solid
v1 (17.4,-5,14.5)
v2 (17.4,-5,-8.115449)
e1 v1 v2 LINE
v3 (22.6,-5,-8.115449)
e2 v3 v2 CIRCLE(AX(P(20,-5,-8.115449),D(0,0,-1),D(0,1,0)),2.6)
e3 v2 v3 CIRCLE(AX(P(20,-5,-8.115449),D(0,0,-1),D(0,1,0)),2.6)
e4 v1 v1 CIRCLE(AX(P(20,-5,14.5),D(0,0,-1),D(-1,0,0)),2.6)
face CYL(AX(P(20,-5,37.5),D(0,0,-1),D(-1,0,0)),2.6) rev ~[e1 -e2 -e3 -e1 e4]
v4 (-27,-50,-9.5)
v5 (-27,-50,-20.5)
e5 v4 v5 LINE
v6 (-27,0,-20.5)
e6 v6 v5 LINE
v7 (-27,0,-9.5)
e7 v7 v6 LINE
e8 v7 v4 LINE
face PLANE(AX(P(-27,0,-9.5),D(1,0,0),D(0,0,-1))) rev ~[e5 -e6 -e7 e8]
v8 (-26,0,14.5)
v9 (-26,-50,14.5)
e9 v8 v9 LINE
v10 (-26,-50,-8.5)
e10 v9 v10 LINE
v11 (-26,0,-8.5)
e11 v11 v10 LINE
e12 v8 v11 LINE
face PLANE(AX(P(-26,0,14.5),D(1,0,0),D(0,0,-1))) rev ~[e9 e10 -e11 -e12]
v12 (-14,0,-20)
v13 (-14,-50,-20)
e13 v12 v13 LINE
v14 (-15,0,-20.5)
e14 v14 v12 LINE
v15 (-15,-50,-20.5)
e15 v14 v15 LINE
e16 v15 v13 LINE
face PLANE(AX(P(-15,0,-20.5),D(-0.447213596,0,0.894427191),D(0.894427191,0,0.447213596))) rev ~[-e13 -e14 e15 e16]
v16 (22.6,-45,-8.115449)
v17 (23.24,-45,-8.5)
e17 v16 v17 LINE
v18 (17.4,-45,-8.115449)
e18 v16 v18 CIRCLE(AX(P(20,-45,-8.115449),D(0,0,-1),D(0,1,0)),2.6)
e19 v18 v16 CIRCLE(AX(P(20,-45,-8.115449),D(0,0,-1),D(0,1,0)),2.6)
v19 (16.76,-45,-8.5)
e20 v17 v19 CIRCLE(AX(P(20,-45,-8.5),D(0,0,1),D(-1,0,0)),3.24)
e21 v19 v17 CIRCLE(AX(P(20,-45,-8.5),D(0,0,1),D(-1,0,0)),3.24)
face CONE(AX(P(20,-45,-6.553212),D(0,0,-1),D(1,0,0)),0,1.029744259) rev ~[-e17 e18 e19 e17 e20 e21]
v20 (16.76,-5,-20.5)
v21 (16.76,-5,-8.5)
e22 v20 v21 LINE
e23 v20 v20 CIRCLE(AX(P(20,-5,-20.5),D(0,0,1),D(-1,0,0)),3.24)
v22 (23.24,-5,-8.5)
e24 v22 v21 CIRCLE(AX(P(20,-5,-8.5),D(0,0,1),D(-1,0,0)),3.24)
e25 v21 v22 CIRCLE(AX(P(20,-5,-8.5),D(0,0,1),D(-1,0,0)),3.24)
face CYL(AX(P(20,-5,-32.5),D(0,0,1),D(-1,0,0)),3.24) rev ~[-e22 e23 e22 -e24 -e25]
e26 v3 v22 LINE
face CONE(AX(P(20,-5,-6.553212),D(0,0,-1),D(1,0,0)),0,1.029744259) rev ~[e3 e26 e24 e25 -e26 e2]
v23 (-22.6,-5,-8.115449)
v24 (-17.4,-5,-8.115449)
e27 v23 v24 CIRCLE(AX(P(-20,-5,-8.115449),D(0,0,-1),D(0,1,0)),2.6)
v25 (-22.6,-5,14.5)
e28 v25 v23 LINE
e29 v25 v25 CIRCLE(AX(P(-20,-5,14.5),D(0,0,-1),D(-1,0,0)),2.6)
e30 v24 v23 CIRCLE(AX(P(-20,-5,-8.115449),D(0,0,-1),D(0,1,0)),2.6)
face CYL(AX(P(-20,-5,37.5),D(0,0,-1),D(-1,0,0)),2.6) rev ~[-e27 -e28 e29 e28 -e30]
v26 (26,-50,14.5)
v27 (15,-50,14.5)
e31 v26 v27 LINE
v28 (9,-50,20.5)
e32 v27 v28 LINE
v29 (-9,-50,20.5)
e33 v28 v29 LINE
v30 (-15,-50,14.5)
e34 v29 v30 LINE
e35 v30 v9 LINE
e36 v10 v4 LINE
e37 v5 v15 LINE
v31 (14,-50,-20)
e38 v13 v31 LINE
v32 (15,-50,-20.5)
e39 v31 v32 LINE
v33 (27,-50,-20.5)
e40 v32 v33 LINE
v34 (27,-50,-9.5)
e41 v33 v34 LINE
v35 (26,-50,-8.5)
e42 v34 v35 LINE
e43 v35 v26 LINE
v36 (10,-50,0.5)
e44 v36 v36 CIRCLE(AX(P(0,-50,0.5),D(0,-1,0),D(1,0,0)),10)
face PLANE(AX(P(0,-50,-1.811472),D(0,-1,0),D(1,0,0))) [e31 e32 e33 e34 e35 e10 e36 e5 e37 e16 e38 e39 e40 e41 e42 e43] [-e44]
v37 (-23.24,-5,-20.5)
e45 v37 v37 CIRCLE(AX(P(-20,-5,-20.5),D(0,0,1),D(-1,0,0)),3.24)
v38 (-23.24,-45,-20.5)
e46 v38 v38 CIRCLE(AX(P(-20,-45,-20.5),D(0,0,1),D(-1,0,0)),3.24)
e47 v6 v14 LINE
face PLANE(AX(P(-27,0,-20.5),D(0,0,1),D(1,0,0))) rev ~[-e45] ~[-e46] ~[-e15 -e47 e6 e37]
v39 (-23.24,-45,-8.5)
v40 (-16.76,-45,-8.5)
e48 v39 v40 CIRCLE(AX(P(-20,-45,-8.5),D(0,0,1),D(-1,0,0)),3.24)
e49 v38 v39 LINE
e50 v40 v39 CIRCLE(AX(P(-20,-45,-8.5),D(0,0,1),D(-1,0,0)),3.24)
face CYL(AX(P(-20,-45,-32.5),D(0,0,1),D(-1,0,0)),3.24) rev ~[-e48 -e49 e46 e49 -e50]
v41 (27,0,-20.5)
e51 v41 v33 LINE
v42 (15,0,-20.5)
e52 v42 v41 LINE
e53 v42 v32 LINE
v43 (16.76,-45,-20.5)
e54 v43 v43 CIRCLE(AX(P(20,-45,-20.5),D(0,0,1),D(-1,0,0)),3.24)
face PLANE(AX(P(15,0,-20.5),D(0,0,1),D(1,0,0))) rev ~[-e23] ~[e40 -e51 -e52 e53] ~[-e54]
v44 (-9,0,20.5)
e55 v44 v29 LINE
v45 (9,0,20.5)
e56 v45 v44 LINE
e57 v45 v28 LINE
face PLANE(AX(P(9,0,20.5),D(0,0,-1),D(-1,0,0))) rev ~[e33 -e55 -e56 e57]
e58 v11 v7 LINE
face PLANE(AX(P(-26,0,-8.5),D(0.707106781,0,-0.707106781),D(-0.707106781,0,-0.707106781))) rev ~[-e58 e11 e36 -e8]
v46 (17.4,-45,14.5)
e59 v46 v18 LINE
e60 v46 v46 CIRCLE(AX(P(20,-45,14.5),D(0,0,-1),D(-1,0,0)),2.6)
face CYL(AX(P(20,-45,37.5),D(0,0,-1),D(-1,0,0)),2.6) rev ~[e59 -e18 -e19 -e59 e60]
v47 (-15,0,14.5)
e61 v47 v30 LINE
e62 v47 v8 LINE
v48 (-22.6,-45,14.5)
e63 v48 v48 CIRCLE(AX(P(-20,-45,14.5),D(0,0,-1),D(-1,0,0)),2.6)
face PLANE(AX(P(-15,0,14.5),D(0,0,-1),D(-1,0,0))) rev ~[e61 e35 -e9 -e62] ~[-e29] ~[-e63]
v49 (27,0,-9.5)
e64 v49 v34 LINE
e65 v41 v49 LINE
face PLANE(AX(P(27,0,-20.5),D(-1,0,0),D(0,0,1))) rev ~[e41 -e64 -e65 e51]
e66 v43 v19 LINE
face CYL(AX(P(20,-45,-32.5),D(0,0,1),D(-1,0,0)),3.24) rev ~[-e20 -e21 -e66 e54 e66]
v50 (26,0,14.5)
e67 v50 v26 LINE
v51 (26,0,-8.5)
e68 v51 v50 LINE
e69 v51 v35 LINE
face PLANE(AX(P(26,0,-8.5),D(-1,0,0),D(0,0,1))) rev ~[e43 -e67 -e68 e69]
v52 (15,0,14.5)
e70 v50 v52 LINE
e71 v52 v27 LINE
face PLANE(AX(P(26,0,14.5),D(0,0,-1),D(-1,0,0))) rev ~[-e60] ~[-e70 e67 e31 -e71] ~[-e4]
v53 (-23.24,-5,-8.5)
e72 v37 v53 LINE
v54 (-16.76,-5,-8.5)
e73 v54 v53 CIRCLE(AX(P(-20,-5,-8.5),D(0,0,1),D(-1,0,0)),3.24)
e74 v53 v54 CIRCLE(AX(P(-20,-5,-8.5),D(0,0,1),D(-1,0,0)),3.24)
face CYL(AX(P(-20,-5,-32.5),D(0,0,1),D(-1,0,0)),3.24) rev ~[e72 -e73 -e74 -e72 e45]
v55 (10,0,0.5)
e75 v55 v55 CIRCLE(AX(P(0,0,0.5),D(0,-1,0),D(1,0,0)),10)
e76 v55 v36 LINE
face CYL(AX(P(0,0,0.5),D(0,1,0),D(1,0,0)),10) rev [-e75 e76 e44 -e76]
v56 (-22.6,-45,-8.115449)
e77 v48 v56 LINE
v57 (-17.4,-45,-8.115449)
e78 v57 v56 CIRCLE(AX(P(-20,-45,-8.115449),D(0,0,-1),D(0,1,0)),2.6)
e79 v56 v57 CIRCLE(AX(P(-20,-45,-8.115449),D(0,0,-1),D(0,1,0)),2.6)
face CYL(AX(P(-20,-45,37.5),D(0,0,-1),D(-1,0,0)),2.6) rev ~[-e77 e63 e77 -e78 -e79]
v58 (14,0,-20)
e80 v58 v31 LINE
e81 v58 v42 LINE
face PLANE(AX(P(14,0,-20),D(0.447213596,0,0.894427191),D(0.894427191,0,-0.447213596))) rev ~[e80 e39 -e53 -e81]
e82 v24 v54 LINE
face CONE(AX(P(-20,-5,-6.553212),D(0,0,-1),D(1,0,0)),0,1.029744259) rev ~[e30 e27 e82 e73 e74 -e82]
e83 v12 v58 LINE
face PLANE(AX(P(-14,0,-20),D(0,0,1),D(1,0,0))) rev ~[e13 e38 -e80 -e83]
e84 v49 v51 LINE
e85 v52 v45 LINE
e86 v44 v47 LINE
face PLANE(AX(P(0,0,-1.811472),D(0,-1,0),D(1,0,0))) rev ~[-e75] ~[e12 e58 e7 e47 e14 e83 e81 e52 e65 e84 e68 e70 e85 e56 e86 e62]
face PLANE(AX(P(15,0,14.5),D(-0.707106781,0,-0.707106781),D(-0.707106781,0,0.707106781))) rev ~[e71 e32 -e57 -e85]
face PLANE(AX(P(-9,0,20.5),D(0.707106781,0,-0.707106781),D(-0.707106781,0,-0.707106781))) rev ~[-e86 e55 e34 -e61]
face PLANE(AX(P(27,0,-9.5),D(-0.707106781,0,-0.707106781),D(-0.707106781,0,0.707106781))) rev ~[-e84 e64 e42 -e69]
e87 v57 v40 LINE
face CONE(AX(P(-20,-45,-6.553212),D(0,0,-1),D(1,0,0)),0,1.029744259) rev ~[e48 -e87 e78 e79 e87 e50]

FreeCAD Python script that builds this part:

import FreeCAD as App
import Part
import Sketcher

V = App.Vector


def add_polygon(sketch, points):
    """Adds a closed chain of lines whose ends are joined by coincident constraints."""
    first, n = sketch.GeometryCount, len(points)
    for a, b in zip(points, points[1:] + points[:1]):
        sketch.addGeometry(Part.LineSegment(App.Vector(*a, 0), App.Vector(*b, 0)), False)
    for i in range(n):
        sketch.addConstraint(Sketcher.Constraint("Coincident", first + i, 2, first + (i + 1) % n, 1))

doc = App.newDocument("Part")
body = doc.addObject("PartDesign::Body", "Body")

sketch1 = body.newObject("Sketcher::SketchObject", "Sketch")
sketch1.AttachmentSupport = (doc.getObject("XZ_Plane"), [""])
sketch1.MapMode = "FlatFace"
add_polygon(sketch1, [(15, -20.5), (27, -20.5), (27, -9.5), (26, -8.5), (26, 14.5), (15, 14.5), (9, 20.5), (-9, 20.5), (-15, 14.5), (-26, 14.5), (-26, -8.5), (-27, -9.5), (-27, -20.5), (-15, -20.5), (-14, -20), (14, -20)])
sketch1.addGeometry(Part.Circle(V(0, 0.5, 0), V(0, 0, 1), 10), False)
sketch1.addConstraint([
    Sketcher.Constraint("Horizontal", 0),
    Sketcher.Constraint("Vertical", 1),
    Sketcher.Constraint("Vertical", 3),
    Sketcher.Constraint("Horizontal", 4),
    Sketcher.Constraint("Horizontal", 6),
    Sketcher.Constraint("Horizontal", 8),
    Sketcher.Constraint("Vertical", 9),
    Sketcher.Constraint("Vertical", 11),
    Sketcher.Constraint("Horizontal", 12),
    Sketcher.Constraint("Horizontal", 14),
    Sketcher.Constraint("Symmetric", 4, 2, 7, 2, -2),
    Sketcher.Constraint("Symmetric", 2, 2, 9, 2, -2),
    Sketcher.Constraint("Symmetric", 1, 2, 10, 2, -2),
    Sketcher.Constraint("Symmetric", 12, 2, 15, 2, -2),
    Sketcher.Constraint("PointOnObject", 16, 3, -2),
    Sketcher.Constraint("Parallel", 2, 5),
    Sketcher.Constraint("Perpendicular", 5, 7),
    Sketcher.Constraint("Parallel", 7, 10),
    Sketcher.Constraint("Vertical", 7, 2, 12, 2),
    Sketcher.Constraint("Equal", 8, 1),
    Sketcher.Constraint("Equal", 13, 15),
    Sketcher.Constraint("Diameter", 16, 20.0),
    Sketcher.Constraint("DistanceX", 0, 1, 0, 2, 12.0),
    Sketcher.Constraint("DistanceX", 4, 2, 4, 1, 11.0),
    Sketcher.Constraint("DistanceX", 6, 2, 6, 1, 18.0),
    Sketcher.Constraint("DistanceX", 14, 1, 14, 2, 28.0),
    Sketcher.Constraint("DistanceY", 3, 1, 3, 2, 23.0),
    Sketcher.Constraint("DistanceX", -1, 1, 0, 2, 27.0),
    Sketcher.Constraint("DistanceY", 13, 2, -1, 1, 20.0),
    Sketcher.Constraint("DistanceY", 0, 2, 16, 3, 21.0),
    Sketcher.Constraint("DistanceY", -1, 1, 16, 3, 0.5),
])
pad1 = body.newObject("PartDesign::Pad", "Pad")
pad1.Profile = sketch1
pad1.Length = 50

sketch2 = body.newObject("Sketcher::SketchObject", "Sketch001")
sketch2.AttachmentSupport = (doc.getObject("XY_Plane"), [""])
sketch2.MapMode = "FlatFace"
sketch2.AttachmentOffset = App.Placement(V(0, 0, -20.5), App.Rotation())
sketch2.addGeometry(Part.Circle(V(20, -45, 0), V(0, 0, 1), 3.2), False)
sketch2.addConstraint([
    Sketcher.Constraint("Diameter", 0, 6.48),
    Sketcher.Constraint("DistanceX", -1, 1, 0, 3, 20.0),
    Sketcher.Constraint("DistanceY", 0, 3, -1, 1, 45.0),
])
doc.recompute()
hole = body.newObject("PartDesign::Hole", "Hole")
hole.Profile = sketch2
hole.ThreadType = "None"
hole.Diameter = 6.48
hole.DepthType = "Dimension"
hole.Depth = 12
hole.DrillPoint = "Angled"
hole.DrillPointAngle = 118
hole.Reversed = True

sketch3 = body.newObject("Sketcher::SketchObject", "Sketch002")
sketch3.AttachmentSupport = (doc.getObject("XY_Plane"), [""])
sketch3.MapMode = "FlatFace"
sketch3.AttachmentOffset = App.Placement(V(0, 0, -20.5), App.Rotation())
sketch3.addGeometry(Part.Circle(V(-20, -45, 0), V(0, 0, 1), 3.2), False)
sketch3.addConstraint([
    Sketcher.Constraint("Diameter", 0, 6.48),
    Sketcher.Constraint("DistanceX", 0, 3, -1, 1, 20.0),
    Sketcher.Constraint("DistanceY", 0, 3, -1, 1, 45.0),
])
doc.recompute()
hole2 = body.newObject("PartDesign::Hole", "Hole001")
hole2.Profile = sketch3
hole2.ThreadType = "None"
hole2.Diameter = 6.48
hole2.DepthType = "Dimension"
hole2.Depth = 12
hole2.DrillPoint = "Angled"
hole2.DrillPointAngle = 118
hole2.Reversed = True

sketch4 = body.newObject("Sketcher::SketchObject", "Sketch003")
sketch4.AttachmentSupport = (doc.getObject("XY_Plane"), [""])
sketch4.MapMode = "FlatFace"
sketch4.AttachmentOffset = App.Placement(V(0, 0, -20.5), App.Rotation())
sketch4.addGeometry(Part.Circle(V(20, -5, 0), V(0, 0, 1), 3.2), False)
sketch4.addConstraint([
    Sketcher.Constraint("Diameter", 0, 6.48),
    Sketcher.Constraint("DistanceX", -1, 1, 0, 3, 20.0),
    Sketcher.Constraint("DistanceY", 0, 3, -1, 1, 5.0),
])
doc.recompute()
hole3 = body.newObject("PartDesign::Hole", "Hole002")
hole3.Profile = sketch4
hole3.ThreadType = "None"
hole3.Diameter = 6.48
hole3.DepthType = "Dimension"
hole3.Depth = 12
hole3.DrillPoint = "Angled"
hole3.DrillPointAngle = 118
hole3.Reversed = True

sketch5 = body.newObject("Sketcher::SketchObject", "Sketch004")
sketch5.AttachmentSupport = (doc.getObject("XY_Plane"), [""])
sketch5.MapMode = "FlatFace"
sketch5.AttachmentOffset = App.Placement(V(0, 0, -20.5), App.Rotation())
sketch5.addGeometry(Part.Circle(V(-20, -5, 0), V(0, 0, 1), 3.2), False)
sketch5.addConstraint([
    Sketcher.Constraint("Diameter", 0, 6.48),
    Sketcher.Constraint("DistanceX", 0, 3, -1, 1, 20.0),
    Sketcher.Constraint("DistanceY", 0, 3, -1, 1, 5.0),
])
doc.recompute()
hole4 = body.newObject("PartDesign::Hole", "Hole003")
hole4.Profile = sketch5
hole4.ThreadType = "None"
hole4.Diameter = 6.48
hole4.DepthType = "Dimension"
hole4.Depth = 12
hole4.DrillPoint = "Angled"
hole4.DrillPointAngle = 118
hole4.Reversed = True

sketch6 = body.newObject("Sketcher::SketchObject", "Sketch005")
sketch6.AttachmentSupport = (doc.getObject("XY_Plane"), [""])
sketch6.MapMode = "FlatFace"
sketch6.AttachmentOffset = App.Placement(V(0, 0, 14.5), App.Rotation())
sketch6.addGeometry(Part.Circle(V(20, -45, 0), V(0, 0, 1), 2.6), False)
sketch6.addConstraint([
    Sketcher.Constraint("Diameter", 0, 5.2),
    Sketcher.Constraint("DistanceX", -1, 1, 0, 3, 20.0),
    Sketcher.Constraint("DistanceY", 0, 3, -1, 1, 45.0),
])
doc.recompute()
hole5 = body.newObject("PartDesign::Hole", "Hole004")
hole5.Profile = sketch6
hole5.ThreadType = "None"
hole5.Diameter = 5.2
hole5.DepthType = "Dimension"
hole5.Depth = 23
hole5.DrillPoint = "Angled"
hole5.DrillPointAngle = 118

sketch7 = body.newObject("Sketcher::SketchObject", "Sketch006")
sketch7.AttachmentSupport = (doc.getObject("XY_Plane"), [""])
sketch7.MapMode = "FlatFace"
sketch7.AttachmentOffset = App.Placement(V(0, 0, 14.5), App.Rotation())
sketch7.addGeometry(Part.Circle(V(-20, -45, 0), V(0, 0, 1), 2.6), False)
sketch7.addConstraint([
    Sketcher.Constraint("Diameter", 0, 5.2),
    Sketcher.Constraint("DistanceX", 0, 3, -1, 1, 20.0),
    Sketcher.Constraint("DistanceY", 0, 3, -1, 1, 45.0),
])
doc.recompute()
hole6 = body.newObject("PartDesign::Hole", "Hole005")
hole6.Profile = sketch7
hole6.ThreadType = "None"
hole6.Diameter = 5.2
hole6.DepthType = "Dimension"
hole6.Depth = 23
hole6.DrillPoint = "Angled"
hole6.DrillPointAngle = 118

sketch8 = body.newObject("Sketcher::SketchObject", "Sketch007")
sketch8.AttachmentSupport = (doc.getObject("XY_Plane"), [""])
sketch8.MapMode = "FlatFace"
sketch8.AttachmentOffset = App.Placement(V(0, 0, 14.5), App.Rotation())
sketch8.addGeometry(Part.Circle(V(-20, -5, 0), V(0, 0, 1), 2.6), False)
sketch8.addConstraint([
    Sketcher.Constraint("Diameter", 0, 5.2),
    Sketcher.Constraint("DistanceX", 0, 3, -1, 1, 20.0),
    Sketcher.Constraint("DistanceY", 0, 3, -1, 1, 5.0),
])
doc.recompute()
hole7 = body.newObject("PartDesign::Hole", "Hole006")
hole7.Profile = sketch8
hole7.ThreadType = "None"
hole7.Diameter = 5.2
hole7.DepthType = "Dimension"
hole7.Depth = 23
hole7.DrillPoint = "Angled"
hole7.DrillPointAngle = 118

sketch9 = body.newObject("Sketcher::SketchObject", "Sketch008")
sketch9.AttachmentSupport = (doc.getObject("XY_Plane"), [""])
sketch9.MapMode = "FlatFace"
sketch9.AttachmentOffset = App.Placement(V(0, 0, 14.5), App.Rotation())
sketch9.addGeometry(Part.Circle(V(20, -5, 0), V(0, 0, 1), 2.6), False)
sketch9.addConstraint([
    Sketcher.Constraint("Diameter", 0, 5.2),
    Sketcher.Constraint("DistanceX", -1, 1, 0, 3, 20.0),
    Sketcher.Constraint("DistanceY", 0, 3, -1, 1, 5.0),
])
doc.recompute()
hole8 = body.newObject("PartDesign::Hole", "Hole007")
hole8.Profile = sketch9
hole8.ThreadType = "None"
hole8.Diameter = 5.2
hole8.DepthType = "Dimension"
hole8.Depth = 23
hole8.DrillPoint = "Angled"
hole8.DrillPointAngle = 118

doc.recompute()
